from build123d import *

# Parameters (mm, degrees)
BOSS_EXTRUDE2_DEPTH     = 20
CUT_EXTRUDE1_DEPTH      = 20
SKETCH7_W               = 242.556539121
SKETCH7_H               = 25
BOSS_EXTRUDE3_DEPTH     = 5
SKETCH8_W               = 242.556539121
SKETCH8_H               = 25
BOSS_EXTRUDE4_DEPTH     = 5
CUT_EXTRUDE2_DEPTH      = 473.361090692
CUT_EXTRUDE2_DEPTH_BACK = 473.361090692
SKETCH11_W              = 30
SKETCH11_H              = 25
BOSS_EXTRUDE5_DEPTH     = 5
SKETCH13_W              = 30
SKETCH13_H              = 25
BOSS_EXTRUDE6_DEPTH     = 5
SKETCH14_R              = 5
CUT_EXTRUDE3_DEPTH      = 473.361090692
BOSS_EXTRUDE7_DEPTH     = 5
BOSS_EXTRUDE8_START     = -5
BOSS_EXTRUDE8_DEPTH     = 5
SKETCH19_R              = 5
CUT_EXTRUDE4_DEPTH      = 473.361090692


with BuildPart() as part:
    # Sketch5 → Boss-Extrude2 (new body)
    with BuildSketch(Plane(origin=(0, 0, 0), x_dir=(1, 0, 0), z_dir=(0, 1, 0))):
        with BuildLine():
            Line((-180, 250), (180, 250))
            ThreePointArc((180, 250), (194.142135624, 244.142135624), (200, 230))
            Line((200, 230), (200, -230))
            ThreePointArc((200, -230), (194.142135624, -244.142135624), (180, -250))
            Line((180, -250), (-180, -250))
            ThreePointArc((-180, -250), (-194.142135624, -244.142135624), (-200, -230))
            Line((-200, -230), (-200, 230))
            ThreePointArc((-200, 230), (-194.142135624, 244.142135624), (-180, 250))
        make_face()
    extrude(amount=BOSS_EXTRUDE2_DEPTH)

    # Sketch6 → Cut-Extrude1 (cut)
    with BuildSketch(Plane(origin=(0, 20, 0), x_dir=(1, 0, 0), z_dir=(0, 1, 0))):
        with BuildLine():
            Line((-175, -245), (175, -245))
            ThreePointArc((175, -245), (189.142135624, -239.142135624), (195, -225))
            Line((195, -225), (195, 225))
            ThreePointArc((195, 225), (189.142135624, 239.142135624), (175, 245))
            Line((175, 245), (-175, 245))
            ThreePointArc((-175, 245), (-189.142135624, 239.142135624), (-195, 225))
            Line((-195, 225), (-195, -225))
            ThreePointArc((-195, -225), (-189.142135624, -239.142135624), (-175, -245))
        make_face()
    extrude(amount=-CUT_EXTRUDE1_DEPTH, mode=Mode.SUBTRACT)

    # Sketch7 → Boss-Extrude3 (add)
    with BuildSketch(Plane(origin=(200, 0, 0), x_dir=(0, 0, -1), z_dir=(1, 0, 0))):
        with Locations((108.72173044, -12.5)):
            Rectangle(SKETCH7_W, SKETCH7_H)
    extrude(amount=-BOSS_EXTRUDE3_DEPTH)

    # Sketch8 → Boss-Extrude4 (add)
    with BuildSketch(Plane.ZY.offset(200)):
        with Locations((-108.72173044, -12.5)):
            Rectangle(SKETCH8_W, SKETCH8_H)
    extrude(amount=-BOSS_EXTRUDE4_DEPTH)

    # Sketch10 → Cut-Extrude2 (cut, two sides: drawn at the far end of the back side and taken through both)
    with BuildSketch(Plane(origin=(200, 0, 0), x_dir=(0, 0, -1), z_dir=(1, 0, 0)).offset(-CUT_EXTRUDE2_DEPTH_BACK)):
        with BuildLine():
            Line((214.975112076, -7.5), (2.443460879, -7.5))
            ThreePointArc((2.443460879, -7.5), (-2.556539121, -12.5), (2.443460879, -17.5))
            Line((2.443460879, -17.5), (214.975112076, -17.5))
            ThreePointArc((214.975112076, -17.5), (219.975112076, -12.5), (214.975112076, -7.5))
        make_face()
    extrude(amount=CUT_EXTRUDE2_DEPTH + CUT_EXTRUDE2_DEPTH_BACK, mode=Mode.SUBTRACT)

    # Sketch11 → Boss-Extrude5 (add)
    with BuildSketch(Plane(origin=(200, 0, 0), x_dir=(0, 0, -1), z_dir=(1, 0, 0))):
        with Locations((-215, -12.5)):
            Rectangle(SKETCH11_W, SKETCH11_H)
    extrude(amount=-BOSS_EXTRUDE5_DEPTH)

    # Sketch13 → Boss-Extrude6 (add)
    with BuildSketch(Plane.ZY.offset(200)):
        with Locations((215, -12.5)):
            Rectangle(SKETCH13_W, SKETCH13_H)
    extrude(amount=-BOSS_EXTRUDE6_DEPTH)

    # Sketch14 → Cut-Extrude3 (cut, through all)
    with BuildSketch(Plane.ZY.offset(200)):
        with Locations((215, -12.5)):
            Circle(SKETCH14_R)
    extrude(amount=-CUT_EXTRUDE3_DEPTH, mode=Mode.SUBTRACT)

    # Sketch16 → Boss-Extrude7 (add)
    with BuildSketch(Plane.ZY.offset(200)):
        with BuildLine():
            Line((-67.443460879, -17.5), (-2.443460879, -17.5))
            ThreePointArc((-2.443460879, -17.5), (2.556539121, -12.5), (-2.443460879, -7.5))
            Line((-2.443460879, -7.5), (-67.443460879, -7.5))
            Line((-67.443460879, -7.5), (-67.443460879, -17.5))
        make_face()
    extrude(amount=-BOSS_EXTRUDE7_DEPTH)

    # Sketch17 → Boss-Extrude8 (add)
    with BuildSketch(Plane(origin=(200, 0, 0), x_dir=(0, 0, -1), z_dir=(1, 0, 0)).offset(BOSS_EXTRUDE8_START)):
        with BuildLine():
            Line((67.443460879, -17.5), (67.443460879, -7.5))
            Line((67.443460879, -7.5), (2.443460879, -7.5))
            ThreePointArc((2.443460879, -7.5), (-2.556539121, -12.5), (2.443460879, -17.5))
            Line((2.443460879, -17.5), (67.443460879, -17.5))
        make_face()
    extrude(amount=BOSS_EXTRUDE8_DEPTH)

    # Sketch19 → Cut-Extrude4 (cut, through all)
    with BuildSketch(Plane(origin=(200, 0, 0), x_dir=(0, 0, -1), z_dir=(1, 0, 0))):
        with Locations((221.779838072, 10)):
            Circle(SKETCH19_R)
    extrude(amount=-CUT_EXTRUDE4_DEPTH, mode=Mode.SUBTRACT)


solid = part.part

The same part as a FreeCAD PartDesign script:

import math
import FreeCAD as App
import Part
import Sketcher
Q = App.Units.Quantity

doc = App.newDocument("Part")
body = doc.addObject("PartDesign::Body", "Body")

# Sketch on XZ plane
sketch1 = body.newObject("Sketcher::SketchObject", "Sketch")
sketch1.AttachmentSupport = (doc.getObject("XZ_Plane"), [""])
sketch1.MapMode = "FlatFace"
sketch1.addGeometry([
    Part.LineSegment(App.Vector(180, -250, 0), App.Vector(-180, -250, 0)),  # 0
    Part.ArcOfCircle(Part.Circle(App.Vector(-180, -230, 0), App.Vector(0, 0, 1), 20), math.radians(180), math.radians(270)),  # 1
    Part.LineSegment(App.Vector(-200, -230, 0), App.Vector(-200, 230, 0)),  # 2
    Part.ArcOfCircle(Part.Circle(App.Vector(-180, 230, 0), App.Vector(0, 0, 1), 20), math.radians(90), math.radians(180)),  # 3
    Part.LineSegment(App.Vector(-180, 250, 0), App.Vector(180, 250, 0)),  # 4
    Part.ArcOfCircle(Part.Circle(App.Vector(180, 230, 0), App.Vector(0, 0, 1), 20), math.radians(0), math.radians(90)),  # 5
    Part.LineSegment(App.Vector(200, 230, 0), App.Vector(200, -230, 0)),  # 6
    Part.ArcOfCircle(Part.Circle(App.Vector(180, -230, 0), App.Vector(0, 0, 1), 20), math.radians(-90), math.radians(0)),  # 7
], False)
sketch1.addConstraint([
    Sketcher.Constraint("Tangent", 0, 2, 1, 2),
    Sketcher.Constraint("Tangent", 1, 1, 2, 1),
    Sketcher.Constraint("Tangent", 2, 2, 3, 2),
    Sketcher.Constraint("Tangent", 3, 1, 4, 1),
    Sketcher.Constraint("Tangent", 4, 2, 5, 2),
    Sketcher.Constraint("Tangent", 5, 1, 6, 1),
    Sketcher.Constraint("Tangent", 6, 2, 7, 2),
    Sketcher.Constraint("Tangent", 7, 1, 0, 1),
    Sketcher.Constraint("Horizontal", 0),
    Sketcher.Constraint("Vertical", 2),
    Sketcher.Constraint("Horizontal", 4),
    Sketcher.Constraint("Vertical", 6),
    Sketcher.Constraint("Equal", 1, 3),
    Sketcher.Constraint("Equal", 3, 5),
    Sketcher.Constraint("Equal", 5, 7),
    Sketcher.Constraint("Symmetric", 1, 3, 5, 3, -1, 1),
    Sketcher.Constraint("Radius", 1, Q("20 mm")),
    Sketcher.Constraint("DistanceX", 0, 2, 0, 1, Q("360 mm")),
    Sketcher.Constraint("DistanceY", 2, 1, 2, 2, Q("460 mm")),
])
pad1 = body.newObject("PartDesign::Pad", "Pad")
pad1.Profile = sketch1
pad1.Length = 20
pad1.Reversed = True

# Sketch on XZ plane
sketch2 = body.newObject("Sketcher::SketchObject", "Sketch001")
sketch2.AttachmentSupport = (doc.getObject("XZ_Plane"), [""])
sketch2.MapMode = "FlatFace"
sketch2.AttachmentOffset = App.Placement(App.Vector(0, 0, -20), App.Rotation())
sketch2.addGeometry([
    Part.LineSegment(App.Vector(-175, 245, 0), App.Vector(175, 245, 0)),  # 0
    Part.ArcOfCircle(Part.Circle(App.Vector(175, 225, 0), App.Vector(0, 0, 1), 20), math.radians(0), math.radians(90)),  # 1
    Part.LineSegment(App.Vector(195, 225, 0), App.Vector(195, -225, 0)),  # 2
    Part.ArcOfCircle(Part.Circle(App.Vector(175, -225, 0), App.Vector(0, 0, 1), 20), math.radians(-90), math.radians(0)),  # 3
    Part.LineSegment(App.Vector(175, -245, 0), App.Vector(-175, -245, 0)),  # 4
    Part.ArcOfCircle(Part.Circle(App.Vector(-175, -225, 0), App.Vector(0, 0, 1), 20), math.radians(180), math.radians(270)),  # 5
    Part.LineSegment(App.Vector(-195, -225, 0), App.Vector(-195, 225, 0)),  # 6
    Part.ArcOfCircle(Part.Circle(App.Vector(-175, 225, 0), App.Vector(0, 0, 1), 20), math.radians(90), math.radians(180)),  # 7
], False)
sketch2.addConstraint([
    Sketcher.Constraint("Tangent", 0, 2, 1, 2),
    Sketcher.Constraint("Tangent", 1, 1, 2, 1),
    Sketcher.Constraint("Tangent", 2, 2, 3, 2),
    Sketcher.Constraint("Tangent", 3, 1, 4, 1),
    Sketcher.Constraint("Tangent", 4, 2, 5, 2),
    Sketcher.Constraint("Tangent", 5, 1, 6, 1),
    Sketcher.Constraint("Tangent", 6, 2, 7, 2),
    Sketcher.Constraint("Tangent", 7, 1, 0, 1),
    Sketcher.Constraint("Horizontal", 0),
    Sketcher.Constraint("Vertical", 2),
    Sketcher.Constraint("Horizontal", 4),
    Sketcher.Constraint("Vertical", 6),
    Sketcher.Constraint("Equal", 1, 3),
    Sketcher.Constraint("Equal", 3, 5),
    Sketcher.Constraint("Equal", 5, 7),
    Sketcher.Constraint("Symmetric", 1, 3, 5, 3, -1, 1),
    Sketcher.Constraint("Radius", 1, Q("20 mm")),
    Sketcher.Constraint("DistanceX", 0, 1, 0, 2, Q("350 mm")),
    Sketcher.Constraint("DistanceY", 2, 2, 2, 1, Q("450 mm")),
])
pocket1 = body.newObject("PartDesign::Pocket", "Pocket")
pocket1.Profile = sketch2
pocket1.Length = 20
pocket1.Reversed = True

# Sketch on YZ plane
sketch3 = body.newObject("Sketcher::SketchObject", "Sketch002")
sketch3.AttachmentSupport = (doc.getObject("YZ_Plane"), [""])
sketch3.MapMode = "FlatFace"
sketch3.AttachmentOffset = App.Placement(App.Vector(0, 0, 200), App.Rotation())
sketch3.addGeometry([
    Part.LineSegment(App.Vector(0, 13, 0), App.Vector(-25, 13, 0)),
    Part.LineSegment(App.Vector(-25, 13, 0), App.Vector(-25, -230, 0)),
    Part.LineSegment(App.Vector(-25, -230, 0), App.Vector(0, -230, 0)),
    Part.LineSegment(App.Vector(0, -230, 0), App.Vector(0, 13, 0)),
], False)
sketch3.addConstraint([
    Sketcher.Constraint("Coincident", 0, 2, 1, 1),
    Sketcher.Constraint("Coincident", 1, 2, 2, 1),
    Sketcher.Constraint("Coincident", 2, 2, 3, 1),
    Sketcher.Constraint("Coincident", 3, 2, 0, 1),
    Sketcher.Constraint("Horizontal", 0),
    Sketcher.Constraint("Vertical", 1),
    Sketcher.Constraint("Horizontal", 2),
    Sketcher.Constraint("Vertical", 3),
    Sketcher.Constraint("PointOnObject", 2, 2, -2),
    Sketcher.Constraint("DistanceX", 0, 2, 0, 1, Q("25 mm")),
    Sketcher.Constraint("DistanceY", 1, 2, -1, 1, Q("230 mm")),
    Sketcher.Constraint("DistanceY", 1, 2, 1, 1, Q("242.556539 mm")),
])
pad2 = body.newObject("PartDesign::Pad", "Pad001")
pad2.Profile = sketch3
pad2.Length = 5
pad2.Reversed = True

# Sketch on YZ plane
sketch4 = body.newObject("Sketcher::SketchObject", "Sketch003")
sketch4.AttachmentSupport = (doc.getObject("YZ_Plane"), [""])
sketch4.MapMode = "FlatFace"
sketch4.AttachmentOffset = App.Placement(App.Vector(0, 0, -200), App.Rotation())
sketch4.addGeometry([
    Part.LineSegment(App.Vector(0, -230, 0), App.Vector(-25, -230, 0)),
    Part.LineSegment(App.Vector(-25, -230, 0), App.Vector(-25, 13, 0)),
    Part.LineSegment(App.Vector(-25, 13, 0), App.Vector(0, 13, 0)),
    Part.LineSegment(App.Vector(0, 13, 0), App.Vector(0, -230, 0)),
], False)
sketch4.addConstraint([
    Sketcher.Constraint("Coincident", 0, 2, 1, 1),
    Sketcher.Constraint("Coincident", 1, 2, 2, 1),
    Sketcher.Constraint("Coincident", 2, 2, 3, 1),
    Sketcher.Constraint("Coincident", 3, 2, 0, 1),
    Sketcher.Constraint("Horizontal", 0),
    Sketcher.Constraint("Vertical", 1),
    Sketcher.Constraint("Horizontal", 2),
    Sketcher.Constraint("Vertical", 3),
    Sketcher.Constraint("PointOnObject", 2, 2, -2),
    Sketcher.Constraint("DistanceX", 0, 2, 0, 1, Q("25 mm")),
    Sketcher.Constraint("DistanceY", 0, 2, -1, 1, Q("230 mm")),
    Sketcher.Constraint("DistanceY", 1, 1, 1, 2, Q("242.556539 mm")),
])
pad3 = body.newObject("PartDesign::Pad", "Pad002")
pad3.Profile = sketch4
pad3.Length = 5

# Sketch on YZ plane
sketch5 = body.newObject("Sketcher::SketchObject", "Sketch004")
sketch5.AttachmentSupport = (doc.getObject("YZ_Plane"), [""])
sketch5.MapMode = "FlatFace"
sketch5.AttachmentOffset = App.Placement(App.Vector(0, 0, 200), App.Rotation())
sketch5.addGeometry([
    Part.LineSegment(App.Vector(-8, -215, 0), App.Vector(-8, -2, 0)),
    Part.ArcOfCircle(Part.Circle(App.Vector(-12, -2, 0), App.Vector(0, 0, 1), 5), math.radians(0), math.radians(180)),
    Part.LineSegment(App.Vector(-18, -2, 0), App.Vector(-18, -215, 0)),
    Part.ArcOfCircle(Part.Circle(App.Vector(-12, -215, 0), App.Vector(0, 0, 1), 5), math.radians(180), math.radians(360)),
], False)
sketch5.addConstraint([
    Sketcher.Constraint("Tangent", 0, 2, 1, 1),
    Sketcher.Constraint("Tangent", 1, 2, 2, 1),
    Sketcher.Constraint("Tangent", 2, 2, 3, 1),
    Sketcher.Constraint("Tangent", 3, 2, 0, 1),
    Sketcher.Constraint("Vertical", 0),
    Sketcher.Constraint("Vertical", 2),
    Sketcher.Constraint("Radius", 1, Q("5 mm")),
    Sketcher.Constraint("DistanceX", 1, 3, -1, 1, Q("12.5 mm")),
    Sketcher.Constraint("DistanceY", 0, 1, 0, 2, Q("212.531651 mm")),
    Sketcher.Constraint("DistanceY", 1, 3, -1, 1, Q("2.443461 mm")),
])
pocket2 = body.newObject("PartDesign::Pocket", "Pocket001")
pocket2.Profile = sketch5
pocket2.Type = "ThroughAll"
pocket2.Midplane = True

# Sketch on YZ plane
sketch6 = body.newObject("Sketcher::SketchObject", "Sketch005")
sketch6.AttachmentSupport = (doc.getObject("YZ_Plane"), [""])
sketch6.MapMode = "FlatFace"
sketch6.AttachmentOffset = App.Placement(App.Vector(0, 0, 200), App.Rotation())
sketch6.addGeometry([
    Part.LineSegment(App.Vector(0, 230, 0), App.Vector(-25, 230, 0)),
    Part.LineSegment(App.Vector(-25, 230, 0), App.Vector(-25, 200, 0)),
    Part.LineSegment(App.Vector(-25, 200, 0), App.Vector(0, 200, 0)),
    Part.LineSegment(App.Vector(0, 200, 0), App.Vector(0, 230, 0)),
], False)
sketch6.addConstraint([
    Sketcher.Constraint("Coincident", 0, 2, 1, 1),
    Sketcher.Constraint("Coincident", 1, 2, 2, 1),
    Sketcher.Constraint("Coincident", 2, 2, 3, 1),
    Sketcher.Constraint("Coincident", 3, 2, 0, 1),
    Sketcher.Constraint("Horizontal", 0),
    Sketcher.Constraint("Vertical", 1),
    Sketcher.Constraint("Horizontal", 2),
    Sketcher.Constraint("Vertical", 3),
    Sketcher.Constraint("PointOnObject", 2, 2, -2),
    Sketcher.Constraint("DistanceX", 0, 2, 0, 1, Q("25 mm")),
    Sketcher.Constraint("DistanceY", 1, 2, 1, 1, Q("30 mm")),
    Sketcher.Constraint("DistanceY", -1, 1, 0, 2, Q("230 mm")),
])
pad4 = body.newObject("PartDesign::Pad", "Pad003")
pad4.Profile = sketch6
pad4.Length = 5
pad4.Reversed = True

# Sketch on YZ plane
sketch7 = body.newObject("Sketcher::SketchObject", "Sketch006")
sketch7.AttachmentSupport = (doc.getObject("YZ_Plane"), [""])
sketch7.MapMode = "FlatFace"
sketch7.AttachmentOffset = App.Placement(App.Vector(0, 0, -200), App.Rotation())
sketch7.addGeometry([
    Part.LineSegment(App.Vector(0, 200, 0), App.Vector(-25, 200, 0)),
    Part.LineSegment(App.Vector(-25, 200, 0), App.Vector(-25, 230, 0)),
    Part.LineSegment(App.Vector(-25, 230, 0), App.Vector(0, 230, 0)),
    Part.LineSegment(App.Vector(0, 230, 0), App.Vector(0, 200, 0)),
], False)
sketch7.addConstraint([
    Sketcher.Constraint("Coincident", 0, 2, 1, 1),
    Sketcher.Constraint("Coincident", 1, 2, 2, 1),
    Sketcher.Constraint("Coincident", 2, 2, 3, 1),
    Sketcher.Constraint("Coincident", 3, 2, 0, 1),
    Sketcher.Constraint("Horizontal", 0),
    Sketcher.Constraint("Vertical", 1),
    Sketcher.Constraint("Horizontal", 2),
    Sketcher.Constraint("Vertical", 3),
    Sketcher.Constraint("PointOnObject", 2, 2, -2),
    Sketcher.Constraint("DistanceX", 0, 2, 0, 1, Q("25 mm")),
    Sketcher.Constraint("DistanceY", 1, 1, 1, 2, Q("30 mm")),
    Sketcher.Constraint("DistanceY", -1, 1, 0, 2, Q("200 mm")),
])
pad5 = body.newObject("PartDesign::Pad", "Pad004")
pad5.Profile = sketch7
pad5.Length = 5

# Sketch on YZ plane
sketch8 = body.newObject("Sketcher::SketchObject", "Sketch007")
sketch8.AttachmentSupport = (doc.getObject("YZ_Plane"), [""])
sketch8.MapMode = "FlatFace"
sketch8.AttachmentOffset = App.Placement(App.Vector(0, 0, -200), App.Rotation())
sketch8.addGeometry(Part.Circle(App.Vector(-12, 215, 0), App.Vector(0, 0, 1), 5), False)
sketch8.addConstraint([
    Sketcher.Constraint("Diameter", 0, Q("10 mm")),
    Sketcher.Constraint("DistanceY", -1, 1, 0, 3, Q("215 mm")),
    Sketcher.Constraint("DistanceX", 0, 3, -1, 1, Q("12.5 mm")),
])
pocket3 = body.newObject("PartDesign::Pocket", "Pocket002")
pocket3.Profile = sketch8
pocket3.Type = "ThroughAll"
pocket3.Reversed = True

# Sketch on YZ plane
sketch9 = body.newObject("Sketcher::SketchObject", "Sketch008")
sketch9.AttachmentSupport = (doc.getObject("YZ_Plane"), [""])
sketch9.MapMode = "FlatFace"
sketch9.AttachmentOffset = App.Placement(App.Vector(0, 0, -200), App.Rotation())
sketch9.addGeometry([
    Part.LineSegment(App.Vector(-18, -67, 0), App.Vector(-18, -2, 0)),
    Part.ArcOfCircle(Part.Circle(App.Vector(-12, -2, 0), App.Vector(0, 0, 1), 5), math.radians(0), math.radians(180)),
    Part.LineSegment(App.Vector(-8, -2, 0), App.Vector(-8, -67, 0)),
    Part.LineSegment(App.Vector(-8, -67, 0), App.Vector(-18, -67, 0)),
], False)
sketch9.addConstraint([
    Sketcher.Constraint("Tangent", 0, 2, 1, 2),
    Sketcher.Constraint("Tangent", 1, 1, 2, 1),
    Sketcher.Constraint("Coincident", 2, 2, 3, 1),
    Sketcher.Constraint("Coincident", 3, 2, 0, 1),
    Sketcher.Constraint("Vertical", 0),
    Sketcher.Constraint("Vertical", 2),
    Sketcher.Constraint("Horizontal", 3),
    Sketcher.Constraint("Radius", 1, Q("5 mm")),
    Sketcher.Constraint("DistanceY", 0, 1, 0, 2, Q("65 mm")),
    Sketcher.Constraint("DistanceX", 1, 3, -1, 1, Q("12.5 mm")),
    Sketcher.Constraint("DistanceY", 1, 3, -1, 1, Q("2.443461 mm")),
])
pad6 = body.newObject("PartDesign::Pad", "Pad005")
pad6.Profile = sketch9
pad6.Length = 5

# Sketch on YZ plane
sketch10 = body.newObject("Sketcher::SketchObject", "Sketch009")
sketch10.AttachmentSupport = (doc.getObject("YZ_Plane"), [""])
sketch10.MapMode = "FlatFace"
sketch10.AttachmentOffset = App.Placement(App.Vector(0, 0, 195), App.Rotation())
sketch10.addGeometry([
    Part.LineSegment(App.Vector(-18, -67, 0), App.Vector(-8, -67, 0)),
    Part.LineSegment(App.Vector(-8, -67, 0), App.Vector(-8, -2, 0)),
    Part.ArcOfCircle(Part.Circle(App.Vector(-12, -2, 0), App.Vector(0, 0, 1), 5), math.radians(0), math.radians(180)),
    Part.LineSegment(App.Vector(-18, -2, 0), App.Vector(-18, -67, 0)),
], False)
sketch10.addConstraint([
    Sketcher.Constraint("Coincident", 0, 2, 1, 1),
    Sketcher.Constraint("Tangent", 1, 2, 2, 1),
    Sketcher.Constraint("Tangent", 2, 2, 3, 1),
    Sketcher.Constraint("Coincident", 3, 2, 0, 1),
    Sketcher.Constraint("Horizontal", 0),
    Sketcher.Constraint("Vertical", 1),
    Sketcher.Constraint("Vertical", 3),
    Sketcher.Constraint("Radius", 2, Q("5 mm")),
    Sketcher.Constraint("DistanceY", 1, 1, 1, 2, Q("65 mm")),
    Sketcher.Constraint("DistanceX", 2, 3, -1, 1, Q("12.5 mm")),
    Sketcher.Constraint("DistanceY", 2, 3, -1, 1, Q("2.443461 mm")),
])
pad7 = body.newObject("PartDesign::Pad", "Pad006")
pad7.Profile = sketch10
pad7.Length = 5

# Sketch on YZ plane
sketch11 = body.newObject("Sketcher::SketchObject", "Sketch010")
sketch11.AttachmentSupport = (doc.getObject("YZ_Plane"), [""])
sketch11.MapMode = "FlatFace"
sketch11.AttachmentOffset = App.Placement(App.Vector(0, 0, 200), App.Rotation())
sketch11.addGeometry(Part.Circle(App.Vector(10, -222, 0), App.Vector(0, 0, 1), 5), False)
sketch11.addConstraint([
    Sketcher.Constraint("Diameter", 0, Q("10 mm")),
    Sketcher.Constraint("DistanceX", -1, 1, 0, 3, Q("10 mm")),
    Sketcher.Constraint("DistanceY", 0, 3, -1, 1, Q("221.779838 mm")),
])
pocket4 = body.newObject("PartDesign::Pocket", "Pocket003")
pocket4.Profile = sketch11
pocket4.Type = "ThroughAll"

doc.recompute()
